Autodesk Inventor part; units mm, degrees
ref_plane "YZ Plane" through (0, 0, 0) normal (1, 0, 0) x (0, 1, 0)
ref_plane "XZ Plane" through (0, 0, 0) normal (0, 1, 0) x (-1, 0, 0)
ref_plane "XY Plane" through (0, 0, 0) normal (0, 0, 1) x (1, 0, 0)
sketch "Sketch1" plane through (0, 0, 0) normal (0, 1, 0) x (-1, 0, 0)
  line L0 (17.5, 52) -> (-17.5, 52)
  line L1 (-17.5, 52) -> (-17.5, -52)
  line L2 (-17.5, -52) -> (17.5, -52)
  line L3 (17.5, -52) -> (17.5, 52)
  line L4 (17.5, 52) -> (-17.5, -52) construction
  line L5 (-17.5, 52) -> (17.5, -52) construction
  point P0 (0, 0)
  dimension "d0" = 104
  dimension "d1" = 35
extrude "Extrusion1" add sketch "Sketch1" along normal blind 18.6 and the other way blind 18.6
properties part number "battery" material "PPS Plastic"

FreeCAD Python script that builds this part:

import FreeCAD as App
import Part
import Sketcher
Q = App.Units.Quantity

doc = App.newDocument("Part")
body = doc.addObject("PartDesign::Body", "Body")

# Sketch on XZ plane
sketch1 = body.newObject("Sketcher::SketchObject", "Sketch")
sketch1.AttachmentSupport = (doc.getObject("XZ_Plane"), [""])
sketch1.MapMode = "FlatFace"
sketch1.addGeometry([
    Part.LineSegment(App.Vector(-18, -52, 0), App.Vector(-18, 52, 0)),
    Part.LineSegment(App.Vector(-18, 52, 0), App.Vector(18, 52, 0)),
    Part.LineSegment(App.Vector(18, 52, 0), App.Vector(18, -52, 0)),
    Part.LineSegment(App.Vector(18, -52, 0), App.Vector(-18, -52, 0)),
], False)
sketch1.addConstraint([
    Sketcher.Constraint("Coincident", 0, 2, 1, 1),
    Sketcher.Constraint("Coincident", 1, 2, 2, 1),
    Sketcher.Constraint("Coincident", 2, 2, 3, 1),
    Sketcher.Constraint("Coincident", 3, 2, 0, 1),
    Sketcher.Constraint("Vertical", 0),
    Sketcher.Constraint("Horizontal", 1),
    Sketcher.Constraint("Vertical", 2),
    Sketcher.Constraint("Horizontal", 3),
    Sketcher.Constraint("Symmetric", 0, 2, 2, 2, -1, 1),
    Sketcher.Constraint("DistanceX", 1, 1, 1, 2, Q("35 mm")),
    Sketcher.Constraint("DistanceY", 0, 1, 0, 2, Q("104 mm")),
])
pad1 = body.newObject("PartDesign::Pad", "Pad")
pad1.Profile = sketch1
pad1.Type = "TwoLengths"
pad1.Length = 18.6
pad1.Length2 = 18.6
pad1.Reversed = True

doc.recompute()
